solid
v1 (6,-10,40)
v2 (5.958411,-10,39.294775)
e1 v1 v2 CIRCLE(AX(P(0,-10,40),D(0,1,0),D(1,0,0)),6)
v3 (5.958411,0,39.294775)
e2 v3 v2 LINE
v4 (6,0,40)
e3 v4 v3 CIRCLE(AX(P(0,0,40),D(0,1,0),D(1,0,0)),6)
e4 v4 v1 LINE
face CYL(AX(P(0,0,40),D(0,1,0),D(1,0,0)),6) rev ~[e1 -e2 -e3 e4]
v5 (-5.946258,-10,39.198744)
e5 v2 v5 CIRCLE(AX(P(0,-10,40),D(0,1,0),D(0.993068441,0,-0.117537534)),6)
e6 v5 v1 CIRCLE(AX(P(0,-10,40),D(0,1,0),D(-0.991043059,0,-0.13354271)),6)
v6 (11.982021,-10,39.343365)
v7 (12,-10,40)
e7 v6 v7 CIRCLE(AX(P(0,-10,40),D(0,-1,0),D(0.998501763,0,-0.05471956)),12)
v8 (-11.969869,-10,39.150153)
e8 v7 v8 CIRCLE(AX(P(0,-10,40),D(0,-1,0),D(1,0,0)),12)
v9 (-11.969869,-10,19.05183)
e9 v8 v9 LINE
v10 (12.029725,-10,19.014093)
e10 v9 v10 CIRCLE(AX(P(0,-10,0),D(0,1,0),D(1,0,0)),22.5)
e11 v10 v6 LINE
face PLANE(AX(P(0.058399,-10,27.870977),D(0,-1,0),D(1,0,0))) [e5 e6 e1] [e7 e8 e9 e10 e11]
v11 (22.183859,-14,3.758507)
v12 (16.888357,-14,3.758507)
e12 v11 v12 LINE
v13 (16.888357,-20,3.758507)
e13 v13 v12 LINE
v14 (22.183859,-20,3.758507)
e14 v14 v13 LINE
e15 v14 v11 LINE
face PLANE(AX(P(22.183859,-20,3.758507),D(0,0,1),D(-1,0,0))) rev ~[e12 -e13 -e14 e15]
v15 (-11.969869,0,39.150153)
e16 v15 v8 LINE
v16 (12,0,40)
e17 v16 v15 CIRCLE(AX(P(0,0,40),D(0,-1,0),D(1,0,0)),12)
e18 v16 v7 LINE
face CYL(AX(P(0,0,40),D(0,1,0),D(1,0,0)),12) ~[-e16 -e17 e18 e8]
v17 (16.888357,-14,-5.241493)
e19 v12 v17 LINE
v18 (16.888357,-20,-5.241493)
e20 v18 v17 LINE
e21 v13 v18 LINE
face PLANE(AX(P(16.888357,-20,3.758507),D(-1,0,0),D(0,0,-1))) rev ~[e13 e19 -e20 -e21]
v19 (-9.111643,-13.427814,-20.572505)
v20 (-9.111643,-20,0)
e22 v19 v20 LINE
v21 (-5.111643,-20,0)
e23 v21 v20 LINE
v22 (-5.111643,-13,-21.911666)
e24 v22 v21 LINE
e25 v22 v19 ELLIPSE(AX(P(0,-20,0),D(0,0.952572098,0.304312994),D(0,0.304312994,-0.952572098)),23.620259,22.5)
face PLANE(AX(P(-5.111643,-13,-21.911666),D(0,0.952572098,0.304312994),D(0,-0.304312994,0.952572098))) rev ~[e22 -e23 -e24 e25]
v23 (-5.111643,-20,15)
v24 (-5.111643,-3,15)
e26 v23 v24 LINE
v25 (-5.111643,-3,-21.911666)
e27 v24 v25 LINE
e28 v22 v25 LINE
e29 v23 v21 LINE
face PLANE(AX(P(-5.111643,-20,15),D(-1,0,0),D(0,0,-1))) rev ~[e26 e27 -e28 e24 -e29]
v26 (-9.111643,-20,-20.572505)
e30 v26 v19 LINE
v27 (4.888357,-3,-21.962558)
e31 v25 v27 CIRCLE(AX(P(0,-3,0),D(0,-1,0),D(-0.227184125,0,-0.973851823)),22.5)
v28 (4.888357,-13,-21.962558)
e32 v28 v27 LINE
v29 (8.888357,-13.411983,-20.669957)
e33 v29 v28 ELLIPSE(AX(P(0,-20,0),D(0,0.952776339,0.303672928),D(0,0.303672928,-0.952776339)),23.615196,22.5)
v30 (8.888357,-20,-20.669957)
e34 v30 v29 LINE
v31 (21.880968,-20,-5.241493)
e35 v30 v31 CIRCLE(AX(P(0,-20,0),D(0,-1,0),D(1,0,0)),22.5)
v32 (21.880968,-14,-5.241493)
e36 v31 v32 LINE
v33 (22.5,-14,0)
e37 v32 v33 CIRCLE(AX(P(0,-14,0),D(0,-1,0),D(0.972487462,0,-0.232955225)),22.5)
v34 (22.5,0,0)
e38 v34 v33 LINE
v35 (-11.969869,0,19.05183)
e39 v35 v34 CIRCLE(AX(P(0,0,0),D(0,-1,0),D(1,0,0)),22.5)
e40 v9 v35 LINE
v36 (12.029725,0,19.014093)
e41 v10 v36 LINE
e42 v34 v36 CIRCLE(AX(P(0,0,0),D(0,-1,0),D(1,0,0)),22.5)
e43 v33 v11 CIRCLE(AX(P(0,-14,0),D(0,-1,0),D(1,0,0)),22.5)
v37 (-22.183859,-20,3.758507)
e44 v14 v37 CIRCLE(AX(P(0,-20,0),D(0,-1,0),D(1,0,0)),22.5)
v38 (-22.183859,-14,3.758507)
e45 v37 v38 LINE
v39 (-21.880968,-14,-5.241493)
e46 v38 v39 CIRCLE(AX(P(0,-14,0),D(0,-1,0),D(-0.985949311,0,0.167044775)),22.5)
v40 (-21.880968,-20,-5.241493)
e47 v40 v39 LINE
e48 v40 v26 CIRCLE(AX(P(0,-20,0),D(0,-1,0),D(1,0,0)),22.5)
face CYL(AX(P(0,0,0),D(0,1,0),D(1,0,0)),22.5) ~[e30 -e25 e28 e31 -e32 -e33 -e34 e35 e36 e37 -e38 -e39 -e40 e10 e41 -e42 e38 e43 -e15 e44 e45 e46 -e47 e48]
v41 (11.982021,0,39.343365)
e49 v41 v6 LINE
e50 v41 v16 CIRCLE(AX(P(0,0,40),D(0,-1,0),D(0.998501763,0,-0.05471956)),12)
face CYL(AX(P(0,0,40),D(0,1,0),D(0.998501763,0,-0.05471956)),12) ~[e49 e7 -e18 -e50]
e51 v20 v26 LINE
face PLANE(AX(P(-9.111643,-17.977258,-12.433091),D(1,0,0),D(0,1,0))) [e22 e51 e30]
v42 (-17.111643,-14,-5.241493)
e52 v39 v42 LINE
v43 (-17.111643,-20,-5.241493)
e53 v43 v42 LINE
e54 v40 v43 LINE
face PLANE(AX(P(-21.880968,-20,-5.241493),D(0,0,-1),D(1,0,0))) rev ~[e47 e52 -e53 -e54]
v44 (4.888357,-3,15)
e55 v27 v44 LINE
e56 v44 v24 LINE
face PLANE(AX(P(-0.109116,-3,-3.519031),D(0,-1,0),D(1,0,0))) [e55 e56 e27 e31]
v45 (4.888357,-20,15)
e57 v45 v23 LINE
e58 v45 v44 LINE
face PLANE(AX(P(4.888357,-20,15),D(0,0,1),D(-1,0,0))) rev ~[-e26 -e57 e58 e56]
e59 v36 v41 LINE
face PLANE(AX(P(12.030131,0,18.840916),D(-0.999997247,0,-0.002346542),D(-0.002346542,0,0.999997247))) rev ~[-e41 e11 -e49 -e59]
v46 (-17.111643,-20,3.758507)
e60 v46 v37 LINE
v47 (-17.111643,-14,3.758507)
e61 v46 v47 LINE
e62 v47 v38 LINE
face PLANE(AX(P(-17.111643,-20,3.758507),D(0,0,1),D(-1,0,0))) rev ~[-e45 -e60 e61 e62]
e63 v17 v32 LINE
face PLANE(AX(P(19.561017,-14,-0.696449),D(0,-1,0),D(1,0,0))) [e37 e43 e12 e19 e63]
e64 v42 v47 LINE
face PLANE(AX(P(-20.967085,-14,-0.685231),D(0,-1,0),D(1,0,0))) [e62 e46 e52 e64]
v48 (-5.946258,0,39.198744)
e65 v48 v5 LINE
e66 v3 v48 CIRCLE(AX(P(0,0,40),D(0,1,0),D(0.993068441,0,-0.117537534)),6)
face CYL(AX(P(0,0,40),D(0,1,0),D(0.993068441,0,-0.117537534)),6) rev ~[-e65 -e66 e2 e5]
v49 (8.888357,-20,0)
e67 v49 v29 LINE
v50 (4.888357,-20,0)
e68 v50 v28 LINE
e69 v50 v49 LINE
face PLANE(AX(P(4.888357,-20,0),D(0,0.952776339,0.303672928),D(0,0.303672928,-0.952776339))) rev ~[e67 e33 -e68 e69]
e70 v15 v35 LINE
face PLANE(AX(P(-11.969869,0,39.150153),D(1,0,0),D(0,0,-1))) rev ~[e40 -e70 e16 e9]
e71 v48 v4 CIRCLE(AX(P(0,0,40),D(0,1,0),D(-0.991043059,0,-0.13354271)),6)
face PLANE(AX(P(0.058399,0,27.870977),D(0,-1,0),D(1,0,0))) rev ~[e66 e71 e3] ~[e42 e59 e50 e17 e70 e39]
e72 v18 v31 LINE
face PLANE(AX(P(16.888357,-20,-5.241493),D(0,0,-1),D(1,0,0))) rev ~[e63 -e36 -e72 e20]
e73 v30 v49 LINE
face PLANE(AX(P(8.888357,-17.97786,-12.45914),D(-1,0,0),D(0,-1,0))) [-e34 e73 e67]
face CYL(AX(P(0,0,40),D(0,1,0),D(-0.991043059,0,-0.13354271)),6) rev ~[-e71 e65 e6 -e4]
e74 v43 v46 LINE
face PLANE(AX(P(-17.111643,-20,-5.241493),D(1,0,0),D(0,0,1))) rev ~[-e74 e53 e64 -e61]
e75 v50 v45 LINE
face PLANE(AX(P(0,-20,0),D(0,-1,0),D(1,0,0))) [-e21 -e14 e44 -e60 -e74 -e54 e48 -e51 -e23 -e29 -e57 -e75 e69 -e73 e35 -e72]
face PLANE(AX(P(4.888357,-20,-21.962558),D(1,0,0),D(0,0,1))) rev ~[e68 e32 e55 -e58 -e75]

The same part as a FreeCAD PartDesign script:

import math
import FreeCAD as App
import Part
import Sketcher
from FreeCAD import Vector

doc = App.newDocument("Part")
body = doc.addObject("PartDesign::Body", "Body")

sketch1 = body.newObject("Sketcher::SketchObject", "Sketch")
sketch1.AttachmentSupport = (doc.getObject("XZ_Plane"), [""])
sketch1.MapMode = "FlatFace"
sketch1.addGeometry(Part.Circle(Vector(0, 0, 0), Vector(0, 0, 1), 22.5), False)
sketch1.addConstraint([
    Sketcher.Constraint("Coincident", 0, 3, -1, 1),
    Sketcher.Constraint("Diameter", 0, 45.0),
])
pad1 = body.newObject("PartDesign::Pad", "Pad")
pad1.Profile = sketch1
pad1.Length = 20

sketch2 = body.newObject("Sketcher::SketchObject", "Sketch001")
sketch2.AttachmentSupport = (doc.getObject("XZ_Plane"), [""])
sketch2.MapMode = "FlatFace"
sketch2.AttachmentOffset = App.Placement(Vector(0, 0, 20), App.Rotation())
sketch2.addGeometry([
    Part.ArcOfCircle(Part.Circle(Vector(0, 0, 0), Vector(0, 0, 1), 22.5), math.radians(170.38396), math.radians(193.471121)),
    Part.LineSegment(Vector(-21.880968, -5.241493, 0), Vector(-17.111643, -5.241493, 0)),
    Part.LineSegment(Vector(-17.111643, -5.241493, 0), Vector(-17.111643, 3.758507, 0)),
    Part.LineSegment(Vector(-17.111643, 3.758507, 0), Vector(-22.183859, 3.758507, 0)),
    Part.ArcOfCircle(Part.Circle(Vector(0, 0, 0), Vector(0, 0, 1), 22.5), math.radians(0), math.radians(9.61604)),
    Part.LineSegment(Vector(22.183859, 3.758507, 0), Vector(16.888357, 3.758507, 0)),
    Part.LineSegment(Vector(16.888357, 3.758507, 0), Vector(16.888357, -5.241493, 0)),
    Part.LineSegment(Vector(16.888357, -5.241493, 0), Vector(21.880968, -5.241493, 0)),
    Part.ArcOfCircle(Part.Circle(Vector(0, 0, 0), Vector(0, 0, 1), 22.5), math.radians(-13.471121), math.radians(0)),
], False)
sketch2.addConstraint([
    Sketcher.Constraint("Coincident", 0, 2, 1, 1),
    Sketcher.Constraint("Coincident", 1, 2, 2, 1),
    Sketcher.Constraint("Coincident", 2, 2, 3, 1),
    Sketcher.Constraint("Coincident", 3, 2, 0, 1),
    Sketcher.Constraint("Coincident", 4, 2, 5, 1),
    Sketcher.Constraint("Coincident", 5, 2, 6, 1),
    Sketcher.Constraint("Coincident", 6, 2, 7, 1),
    Sketcher.Constraint("Coincident", 7, 2, 8, 1),
    Sketcher.Constraint("Tangent", 8, 2, 4, 1),
    Sketcher.Constraint("Horizontal", 1),
    Sketcher.Constraint("Vertical", 2),
    Sketcher.Constraint("Horizontal", 3),
    Sketcher.Constraint("Horizontal", 5),
    Sketcher.Constraint("Vertical", 6),
    Sketcher.Constraint("Horizontal", 7),
    Sketcher.Constraint("Coincident", 0, 3, -1, 1),
    Sketcher.Constraint("Coincident", 4, 3, -1, 1),
    Sketcher.Constraint("Equal", 0, 4),
    Sketcher.Constraint("Equal", 4, 8),
    Sketcher.Constraint("PointOnObject", 8, 2, -1),
    Sketcher.Constraint("Horizontal", 3, 2, 4, 2),
    Sketcher.Constraint("Horizontal", 1, 2, 6, 2),
    Sketcher.Constraint("Radius", 0, 22.5),
    Sketcher.Constraint("DistanceY", 2, 1, 2, 2, 9.0),
    Sketcher.Constraint("DistanceX", 2, 2, 5, 2, 34.0),
    Sketcher.Constraint("DistanceX", 7, 1, 7, 2, 4.992611),
    Sketcher.Constraint("DistanceX", 1, 1, 1, 2, 4.769325),
])
pocket1 = body.newObject("PartDesign::Pocket", "Pocket")
pocket1.Profile = sketch2
pocket1.Length = 6

sketch3 = body.newObject("Sketcher::SketchObject", "Sketch002")
sketch3.AttachmentSupport = (doc.getObject("XZ_Plane"), [""])
sketch3.MapMode = "FlatFace"
sketch3.AttachmentOffset = App.Placement(Vector(0, 0, 20), App.Rotation())
sketch3.addGeometry([
    Part.ArcOfCircle(Part.Circle(Vector(0, 0, 0), Vector(0, 0, 1), 22.5), math.radians(-103.131346), math.radians(-77.451831)),
    Part.LineSegment(Vector(4.888357, -21.962558, 0), Vector(4.888357, 15, 0)),
    Part.LineSegment(Vector(4.888357, 15, 0), Vector(-5.111643, 15, 0)),
    Part.LineSegment(Vector(-5.111643, 15, 0), Vector(-5.111643, -21.911666, 0)),
], False)
sketch3.addConstraint([
    Sketcher.Constraint("Coincident", 0, 2, 1, 1),
    Sketcher.Constraint("Coincident", 1, 2, 2, 1),
    Sketcher.Constraint("Coincident", 2, 2, 3, 1),
    Sketcher.Constraint("Coincident", 3, 2, 0, 1),
    Sketcher.Constraint("Vertical", 1),
    Sketcher.Constraint("Horizontal", 2),
    Sketcher.Constraint("Vertical", 3),
    Sketcher.Constraint("Coincident", 0, 3, -1, 1),
    Sketcher.Constraint("Radius", 0, 22.5),
    Sketcher.Constraint("DistanceX", 2, 2, 2, 1, 10.0),
    Sketcher.Constraint("DistanceY", -1, 1, 1, 2, 15.0),
    Sketcher.Constraint("DistanceY", 1, 1, 1, 2, 36.962558),
])
pocket2 = body.newObject("PartDesign::Pocket", "Pocket001")
pocket2.Profile = sketch3
pocket2.Length = 17

sketch4 = body.newObject("Sketcher::SketchObject", "Sketch003")
sketch4.AttachmentSupport = (doc.getObject("YZ_Plane"), [""])
sketch4.MapMode = "FlatFace"
sketch4.AttachmentOffset = App.Placement(Vector(0, 0, 4.888357), App.Rotation())
sketch4.addGeometry([
    Part.LineSegment(Vector(-20, 0, 0), Vector(-13, -21.962558, 0)),
    Part.LineSegment(Vector(-13, -21.962558, 0), Vector(-20, -21.962558, 0)),
    Part.LineSegment(Vector(-20, -21.962558, 0), Vector(-20, 0, 0)),
], False)
sketch4.addConstraint([
    Sketcher.Constraint("Coincident", 0, 2, 1, 1),
    Sketcher.Constraint("Coincident", 1, 2, 2, 1),
    Sketcher.Constraint("Coincident", 2, 2, 0, 1),
    Sketcher.Constraint("Horizontal", 1),
    Sketcher.Constraint("Vertical", 2),
    Sketcher.Constraint("PointOnObject", 2, 2, -1),
    Sketcher.Constraint("DistanceX", 1, 2, 1, 1, 7.0),
    Sketcher.Constraint("DistanceX", 0, 2, -1, 1, 13.0),
    Sketcher.Constraint("DistanceY", 2, 1, 2, 2, 21.962558),
])
pocket3 = body.newObject("PartDesign::Pocket", "Pocket002")
pocket3.Profile = sketch4
pocket3.Length = 4
pocket3.Reversed = True

sketch5 = body.newObject("Sketcher::SketchObject", "Sketch004")
sketch5.AttachmentSupport = (doc.getObject("YZ_Plane"), [""])
sketch5.MapMode = "FlatFace"
sketch5.AttachmentOffset = App.Placement(Vector(0, 0, -5.111643), App.Rotation())
sketch5.addGeometry([
    Part.LineSegment(Vector(-20, -21.911666, 0), Vector(-13, -21.911666, 0)),
    Part.LineSegment(Vector(-13, -21.911666, 0), Vector(-20, 0, 0)),
    Part.LineSegment(Vector(-20, 0, 0), Vector(-20, -21.911666, 0)),
], False)
sketch5.addConstraint([
    Sketcher.Constraint("Coincident", 0, 2, 1, 1),
    Sketcher.Constraint("Coincident", 1, 2, 2, 1),
    Sketcher.Constraint("Coincident", 2, 2, 0, 1),
    Sketcher.Constraint("Horizontal", 0),
    Sketcher.Constraint("Vertical", 2),
    Sketcher.Constraint("PointOnObject", 1, 2, -1),
    Sketcher.Constraint("DistanceX", 0, 1, 0, 2, 7.0),
    Sketcher.Constraint("DistanceX", 0, 2, -1, 1, 13.0),
    Sketcher.Constraint("DistanceY", 2, 2, 2, 1, 21.911666),
])
pocket4 = body.newObject("PartDesign::Pocket", "Pocket003")
pocket4.Profile = sketch5
pocket4.Length = 4

sketch6 = body.newObject("Sketcher::SketchObject", "Sketch005")
sketch6.AttachmentSupport = (doc.getObject("XZ_Plane"), [""])
sketch6.MapMode = "FlatFace"
sketch6.addGeometry([
    Part.LineSegment(Vector(-11.969869, 39.150153, 0), Vector(-11.969869, 18.840916, 0)),
    Part.LineSegment(Vector(-11.969869, 18.840916, 0), Vector(12.030131, 18.840916, 0)),
    Part.LineSegment(Vector(12.030131, 18.840916, 0), Vector(11.982021, 39.343365, 0)),
    Part.ArcOfCircle(Part.Circle(Vector(0, 40, 0), Vector(0, 0, 1), 12), math.radians(-3.136767), math.radians(0)),
    Part.ArcOfCircle(Part.Circle(Vector(0, 40, 0), Vector(0, 0, 1), 12), math.radians(0), math.radians(184.061119)),
    Part.ArcOfCircle(Part.Circle(Vector(0, 40, 0), Vector(0, 0, 1), 6), math.radians(-172.32564), math.radians(-6.750008)),
    Part.ArcOfCircle(Part.Circle(Vector(0, 40, 0), Vector(0, 0, 1), 6), math.radians(0), math.radians(187.67436)),
    Part.ArcOfCircle(Part.Circle(Vector(0, 40, 0), Vector(0, 0, 1), 6), math.radians(-6.750008), math.radians(0)),
], False)
sketch6.addConstraint([
    Sketcher.Constraint("Coincident", 0, 2, 1, 1),
    Sketcher.Constraint("Coincident", 1, 2, 2, 1),
    Sketcher.Constraint("Coincident", 2, 2, 3, 1),
    Sketcher.Constraint("Tangent", 3, 2, 4, 1),
    Sketcher.Constraint("Coincident", 4, 2, 0, 1),
    Sketcher.Constraint("Tangent", 5, 1, 6, 2),
    Sketcher.Constraint("Tangent", 6, 1, 7, 2),
    Sketcher.Constraint("Tangent", 7, 1, 5, 2),
    Sketcher.Constraint("Vertical", 0),
    Sketcher.Constraint("Horizontal", 1),
    Sketcher.Constraint("Coincident", 5, 3, 3, 3),
    Sketcher.Constraint("Equal", 3, 4),
    Sketcher.Constraint("PointOnObject", 3, 3, -2),
    Sketcher.Constraint("Horizontal", 7, 3, 3, 2),
    Sketcher.Constraint("Horizontal", 3, 2, 6, 1),
    Sketcher.Constraint("Radius", 3, 12.0),
    Sketcher.Constraint("Radius", 5, 6.0),
    Sketcher.Constraint("DistanceX", 1, 1, 1, 2, 24.0),
    Sketcher.Constraint("DistanceY", -1, 1, 3, 3, 40.0),
    Sketcher.Constraint("DistanceY", 0, 2, 0, 1, 20.309237),
    Sketcher.Constraint("DistanceX", 0, 2, -1, 1, 11.969869),
    Sketcher.Constraint("DistanceX", -1, 1, 2, 2, 11.982021),
    Sketcher.Constraint("DistanceX", 5, 1, -1, 1, 5.946258),
    Sketcher.Constraint("DistanceX", -1, 1, 7, 1, 5.958411),
])
pad2 = body.newObject("PartDesign::Pad", "Pad001")
pad2.Profile = sketch6
pad2.Length = 10

doc.recompute()
